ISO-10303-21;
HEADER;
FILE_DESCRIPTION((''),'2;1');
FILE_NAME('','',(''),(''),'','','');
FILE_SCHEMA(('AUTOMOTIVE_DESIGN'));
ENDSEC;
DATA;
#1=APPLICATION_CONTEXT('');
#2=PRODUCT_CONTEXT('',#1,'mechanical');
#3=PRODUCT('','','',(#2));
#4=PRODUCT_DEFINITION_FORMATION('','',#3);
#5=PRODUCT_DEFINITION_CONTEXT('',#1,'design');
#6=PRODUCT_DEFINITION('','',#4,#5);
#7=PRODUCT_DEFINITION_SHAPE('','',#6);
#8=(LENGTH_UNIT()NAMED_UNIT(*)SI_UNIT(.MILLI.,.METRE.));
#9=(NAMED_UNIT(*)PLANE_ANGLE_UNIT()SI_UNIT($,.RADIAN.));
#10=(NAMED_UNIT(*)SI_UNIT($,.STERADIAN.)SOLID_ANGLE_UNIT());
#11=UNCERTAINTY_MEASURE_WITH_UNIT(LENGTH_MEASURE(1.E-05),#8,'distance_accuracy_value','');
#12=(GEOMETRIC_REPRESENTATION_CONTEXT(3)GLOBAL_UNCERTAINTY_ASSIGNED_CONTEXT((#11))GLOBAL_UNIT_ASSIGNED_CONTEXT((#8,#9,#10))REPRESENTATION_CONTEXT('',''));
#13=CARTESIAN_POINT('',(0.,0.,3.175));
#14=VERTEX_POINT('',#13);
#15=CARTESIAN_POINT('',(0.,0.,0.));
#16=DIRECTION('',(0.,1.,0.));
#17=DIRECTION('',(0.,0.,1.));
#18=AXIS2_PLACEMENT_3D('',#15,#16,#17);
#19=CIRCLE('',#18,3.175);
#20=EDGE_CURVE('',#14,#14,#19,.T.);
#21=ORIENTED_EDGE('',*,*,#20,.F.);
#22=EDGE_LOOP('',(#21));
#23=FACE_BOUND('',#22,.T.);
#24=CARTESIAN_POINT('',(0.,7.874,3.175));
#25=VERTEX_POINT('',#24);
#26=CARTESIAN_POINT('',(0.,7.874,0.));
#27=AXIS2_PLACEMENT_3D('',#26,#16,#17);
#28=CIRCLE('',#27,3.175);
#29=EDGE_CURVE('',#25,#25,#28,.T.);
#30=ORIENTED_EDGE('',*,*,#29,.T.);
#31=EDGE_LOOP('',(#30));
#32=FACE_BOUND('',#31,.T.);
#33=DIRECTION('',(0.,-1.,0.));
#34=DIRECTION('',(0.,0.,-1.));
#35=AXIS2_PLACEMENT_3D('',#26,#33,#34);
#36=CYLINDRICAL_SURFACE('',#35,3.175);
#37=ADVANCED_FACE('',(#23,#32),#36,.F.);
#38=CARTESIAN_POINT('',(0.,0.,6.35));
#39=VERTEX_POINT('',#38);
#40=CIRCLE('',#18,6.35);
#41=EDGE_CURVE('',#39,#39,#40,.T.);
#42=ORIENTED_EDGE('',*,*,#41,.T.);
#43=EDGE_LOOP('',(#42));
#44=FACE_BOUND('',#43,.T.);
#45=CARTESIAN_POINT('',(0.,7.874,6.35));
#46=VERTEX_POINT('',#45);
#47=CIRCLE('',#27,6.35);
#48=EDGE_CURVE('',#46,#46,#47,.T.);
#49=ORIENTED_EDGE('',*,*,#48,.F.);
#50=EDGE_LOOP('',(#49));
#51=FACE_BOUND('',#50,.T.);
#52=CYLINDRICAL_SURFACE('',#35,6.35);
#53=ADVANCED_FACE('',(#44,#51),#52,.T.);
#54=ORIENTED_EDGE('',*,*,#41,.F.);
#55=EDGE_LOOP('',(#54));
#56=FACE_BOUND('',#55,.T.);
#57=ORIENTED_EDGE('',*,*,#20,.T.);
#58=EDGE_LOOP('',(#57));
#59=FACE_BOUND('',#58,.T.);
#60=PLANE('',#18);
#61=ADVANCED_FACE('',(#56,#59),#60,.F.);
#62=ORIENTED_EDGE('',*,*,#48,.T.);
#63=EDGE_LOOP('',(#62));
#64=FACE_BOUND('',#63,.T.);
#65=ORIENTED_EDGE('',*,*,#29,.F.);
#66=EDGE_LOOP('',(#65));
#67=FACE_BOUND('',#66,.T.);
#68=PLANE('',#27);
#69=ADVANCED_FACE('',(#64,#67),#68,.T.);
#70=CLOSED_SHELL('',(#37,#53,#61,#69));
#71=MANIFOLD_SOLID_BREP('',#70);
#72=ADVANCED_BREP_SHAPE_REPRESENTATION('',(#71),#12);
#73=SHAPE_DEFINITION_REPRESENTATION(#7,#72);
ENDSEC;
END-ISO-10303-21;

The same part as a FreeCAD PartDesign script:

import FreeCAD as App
import Part
import Sketcher

V = App.Vector
Q = App.Units.Quantity

doc = App.newDocument("Part")
body = doc.addObject("PartDesign::Body", "Body")

# Sketch on XZ plane
sketch1 = body.newObject("Sketcher::SketchObject", "Sketch")
sketch1.AttachmentSupport = (doc.getObject("XZ_Plane"), [""])
sketch1.MapMode = "FlatFace"
sketch1.addGeometry(Part.Circle(V(0, 0, 0), V(0, 0, 1), 6.3), False)
sketch1.addGeometry(Part.Circle(V(0, 0, 0), V(0, 0, 1), 3.2), False)
sketch1.addConstraint(Sketcher.Constraint("Coincident", 0, 3, -1, 1))
sketch1.addConstraint(Sketcher.Constraint("Coincident", 1, 3, -1, 1))
sketch1.addConstraint(Sketcher.Constraint("Diameter", 0, Q("0.5 in")))
sketch1.addConstraint(Sketcher.Constraint("Diameter", 1, Q("0.25 in")))
pad1 = body.newObject("PartDesign::Pad", "Pad")
pad1.Profile = sketch1
pad1.Length = Q("0.31 in")
pad1.Reversed = True

doc.recompute()
